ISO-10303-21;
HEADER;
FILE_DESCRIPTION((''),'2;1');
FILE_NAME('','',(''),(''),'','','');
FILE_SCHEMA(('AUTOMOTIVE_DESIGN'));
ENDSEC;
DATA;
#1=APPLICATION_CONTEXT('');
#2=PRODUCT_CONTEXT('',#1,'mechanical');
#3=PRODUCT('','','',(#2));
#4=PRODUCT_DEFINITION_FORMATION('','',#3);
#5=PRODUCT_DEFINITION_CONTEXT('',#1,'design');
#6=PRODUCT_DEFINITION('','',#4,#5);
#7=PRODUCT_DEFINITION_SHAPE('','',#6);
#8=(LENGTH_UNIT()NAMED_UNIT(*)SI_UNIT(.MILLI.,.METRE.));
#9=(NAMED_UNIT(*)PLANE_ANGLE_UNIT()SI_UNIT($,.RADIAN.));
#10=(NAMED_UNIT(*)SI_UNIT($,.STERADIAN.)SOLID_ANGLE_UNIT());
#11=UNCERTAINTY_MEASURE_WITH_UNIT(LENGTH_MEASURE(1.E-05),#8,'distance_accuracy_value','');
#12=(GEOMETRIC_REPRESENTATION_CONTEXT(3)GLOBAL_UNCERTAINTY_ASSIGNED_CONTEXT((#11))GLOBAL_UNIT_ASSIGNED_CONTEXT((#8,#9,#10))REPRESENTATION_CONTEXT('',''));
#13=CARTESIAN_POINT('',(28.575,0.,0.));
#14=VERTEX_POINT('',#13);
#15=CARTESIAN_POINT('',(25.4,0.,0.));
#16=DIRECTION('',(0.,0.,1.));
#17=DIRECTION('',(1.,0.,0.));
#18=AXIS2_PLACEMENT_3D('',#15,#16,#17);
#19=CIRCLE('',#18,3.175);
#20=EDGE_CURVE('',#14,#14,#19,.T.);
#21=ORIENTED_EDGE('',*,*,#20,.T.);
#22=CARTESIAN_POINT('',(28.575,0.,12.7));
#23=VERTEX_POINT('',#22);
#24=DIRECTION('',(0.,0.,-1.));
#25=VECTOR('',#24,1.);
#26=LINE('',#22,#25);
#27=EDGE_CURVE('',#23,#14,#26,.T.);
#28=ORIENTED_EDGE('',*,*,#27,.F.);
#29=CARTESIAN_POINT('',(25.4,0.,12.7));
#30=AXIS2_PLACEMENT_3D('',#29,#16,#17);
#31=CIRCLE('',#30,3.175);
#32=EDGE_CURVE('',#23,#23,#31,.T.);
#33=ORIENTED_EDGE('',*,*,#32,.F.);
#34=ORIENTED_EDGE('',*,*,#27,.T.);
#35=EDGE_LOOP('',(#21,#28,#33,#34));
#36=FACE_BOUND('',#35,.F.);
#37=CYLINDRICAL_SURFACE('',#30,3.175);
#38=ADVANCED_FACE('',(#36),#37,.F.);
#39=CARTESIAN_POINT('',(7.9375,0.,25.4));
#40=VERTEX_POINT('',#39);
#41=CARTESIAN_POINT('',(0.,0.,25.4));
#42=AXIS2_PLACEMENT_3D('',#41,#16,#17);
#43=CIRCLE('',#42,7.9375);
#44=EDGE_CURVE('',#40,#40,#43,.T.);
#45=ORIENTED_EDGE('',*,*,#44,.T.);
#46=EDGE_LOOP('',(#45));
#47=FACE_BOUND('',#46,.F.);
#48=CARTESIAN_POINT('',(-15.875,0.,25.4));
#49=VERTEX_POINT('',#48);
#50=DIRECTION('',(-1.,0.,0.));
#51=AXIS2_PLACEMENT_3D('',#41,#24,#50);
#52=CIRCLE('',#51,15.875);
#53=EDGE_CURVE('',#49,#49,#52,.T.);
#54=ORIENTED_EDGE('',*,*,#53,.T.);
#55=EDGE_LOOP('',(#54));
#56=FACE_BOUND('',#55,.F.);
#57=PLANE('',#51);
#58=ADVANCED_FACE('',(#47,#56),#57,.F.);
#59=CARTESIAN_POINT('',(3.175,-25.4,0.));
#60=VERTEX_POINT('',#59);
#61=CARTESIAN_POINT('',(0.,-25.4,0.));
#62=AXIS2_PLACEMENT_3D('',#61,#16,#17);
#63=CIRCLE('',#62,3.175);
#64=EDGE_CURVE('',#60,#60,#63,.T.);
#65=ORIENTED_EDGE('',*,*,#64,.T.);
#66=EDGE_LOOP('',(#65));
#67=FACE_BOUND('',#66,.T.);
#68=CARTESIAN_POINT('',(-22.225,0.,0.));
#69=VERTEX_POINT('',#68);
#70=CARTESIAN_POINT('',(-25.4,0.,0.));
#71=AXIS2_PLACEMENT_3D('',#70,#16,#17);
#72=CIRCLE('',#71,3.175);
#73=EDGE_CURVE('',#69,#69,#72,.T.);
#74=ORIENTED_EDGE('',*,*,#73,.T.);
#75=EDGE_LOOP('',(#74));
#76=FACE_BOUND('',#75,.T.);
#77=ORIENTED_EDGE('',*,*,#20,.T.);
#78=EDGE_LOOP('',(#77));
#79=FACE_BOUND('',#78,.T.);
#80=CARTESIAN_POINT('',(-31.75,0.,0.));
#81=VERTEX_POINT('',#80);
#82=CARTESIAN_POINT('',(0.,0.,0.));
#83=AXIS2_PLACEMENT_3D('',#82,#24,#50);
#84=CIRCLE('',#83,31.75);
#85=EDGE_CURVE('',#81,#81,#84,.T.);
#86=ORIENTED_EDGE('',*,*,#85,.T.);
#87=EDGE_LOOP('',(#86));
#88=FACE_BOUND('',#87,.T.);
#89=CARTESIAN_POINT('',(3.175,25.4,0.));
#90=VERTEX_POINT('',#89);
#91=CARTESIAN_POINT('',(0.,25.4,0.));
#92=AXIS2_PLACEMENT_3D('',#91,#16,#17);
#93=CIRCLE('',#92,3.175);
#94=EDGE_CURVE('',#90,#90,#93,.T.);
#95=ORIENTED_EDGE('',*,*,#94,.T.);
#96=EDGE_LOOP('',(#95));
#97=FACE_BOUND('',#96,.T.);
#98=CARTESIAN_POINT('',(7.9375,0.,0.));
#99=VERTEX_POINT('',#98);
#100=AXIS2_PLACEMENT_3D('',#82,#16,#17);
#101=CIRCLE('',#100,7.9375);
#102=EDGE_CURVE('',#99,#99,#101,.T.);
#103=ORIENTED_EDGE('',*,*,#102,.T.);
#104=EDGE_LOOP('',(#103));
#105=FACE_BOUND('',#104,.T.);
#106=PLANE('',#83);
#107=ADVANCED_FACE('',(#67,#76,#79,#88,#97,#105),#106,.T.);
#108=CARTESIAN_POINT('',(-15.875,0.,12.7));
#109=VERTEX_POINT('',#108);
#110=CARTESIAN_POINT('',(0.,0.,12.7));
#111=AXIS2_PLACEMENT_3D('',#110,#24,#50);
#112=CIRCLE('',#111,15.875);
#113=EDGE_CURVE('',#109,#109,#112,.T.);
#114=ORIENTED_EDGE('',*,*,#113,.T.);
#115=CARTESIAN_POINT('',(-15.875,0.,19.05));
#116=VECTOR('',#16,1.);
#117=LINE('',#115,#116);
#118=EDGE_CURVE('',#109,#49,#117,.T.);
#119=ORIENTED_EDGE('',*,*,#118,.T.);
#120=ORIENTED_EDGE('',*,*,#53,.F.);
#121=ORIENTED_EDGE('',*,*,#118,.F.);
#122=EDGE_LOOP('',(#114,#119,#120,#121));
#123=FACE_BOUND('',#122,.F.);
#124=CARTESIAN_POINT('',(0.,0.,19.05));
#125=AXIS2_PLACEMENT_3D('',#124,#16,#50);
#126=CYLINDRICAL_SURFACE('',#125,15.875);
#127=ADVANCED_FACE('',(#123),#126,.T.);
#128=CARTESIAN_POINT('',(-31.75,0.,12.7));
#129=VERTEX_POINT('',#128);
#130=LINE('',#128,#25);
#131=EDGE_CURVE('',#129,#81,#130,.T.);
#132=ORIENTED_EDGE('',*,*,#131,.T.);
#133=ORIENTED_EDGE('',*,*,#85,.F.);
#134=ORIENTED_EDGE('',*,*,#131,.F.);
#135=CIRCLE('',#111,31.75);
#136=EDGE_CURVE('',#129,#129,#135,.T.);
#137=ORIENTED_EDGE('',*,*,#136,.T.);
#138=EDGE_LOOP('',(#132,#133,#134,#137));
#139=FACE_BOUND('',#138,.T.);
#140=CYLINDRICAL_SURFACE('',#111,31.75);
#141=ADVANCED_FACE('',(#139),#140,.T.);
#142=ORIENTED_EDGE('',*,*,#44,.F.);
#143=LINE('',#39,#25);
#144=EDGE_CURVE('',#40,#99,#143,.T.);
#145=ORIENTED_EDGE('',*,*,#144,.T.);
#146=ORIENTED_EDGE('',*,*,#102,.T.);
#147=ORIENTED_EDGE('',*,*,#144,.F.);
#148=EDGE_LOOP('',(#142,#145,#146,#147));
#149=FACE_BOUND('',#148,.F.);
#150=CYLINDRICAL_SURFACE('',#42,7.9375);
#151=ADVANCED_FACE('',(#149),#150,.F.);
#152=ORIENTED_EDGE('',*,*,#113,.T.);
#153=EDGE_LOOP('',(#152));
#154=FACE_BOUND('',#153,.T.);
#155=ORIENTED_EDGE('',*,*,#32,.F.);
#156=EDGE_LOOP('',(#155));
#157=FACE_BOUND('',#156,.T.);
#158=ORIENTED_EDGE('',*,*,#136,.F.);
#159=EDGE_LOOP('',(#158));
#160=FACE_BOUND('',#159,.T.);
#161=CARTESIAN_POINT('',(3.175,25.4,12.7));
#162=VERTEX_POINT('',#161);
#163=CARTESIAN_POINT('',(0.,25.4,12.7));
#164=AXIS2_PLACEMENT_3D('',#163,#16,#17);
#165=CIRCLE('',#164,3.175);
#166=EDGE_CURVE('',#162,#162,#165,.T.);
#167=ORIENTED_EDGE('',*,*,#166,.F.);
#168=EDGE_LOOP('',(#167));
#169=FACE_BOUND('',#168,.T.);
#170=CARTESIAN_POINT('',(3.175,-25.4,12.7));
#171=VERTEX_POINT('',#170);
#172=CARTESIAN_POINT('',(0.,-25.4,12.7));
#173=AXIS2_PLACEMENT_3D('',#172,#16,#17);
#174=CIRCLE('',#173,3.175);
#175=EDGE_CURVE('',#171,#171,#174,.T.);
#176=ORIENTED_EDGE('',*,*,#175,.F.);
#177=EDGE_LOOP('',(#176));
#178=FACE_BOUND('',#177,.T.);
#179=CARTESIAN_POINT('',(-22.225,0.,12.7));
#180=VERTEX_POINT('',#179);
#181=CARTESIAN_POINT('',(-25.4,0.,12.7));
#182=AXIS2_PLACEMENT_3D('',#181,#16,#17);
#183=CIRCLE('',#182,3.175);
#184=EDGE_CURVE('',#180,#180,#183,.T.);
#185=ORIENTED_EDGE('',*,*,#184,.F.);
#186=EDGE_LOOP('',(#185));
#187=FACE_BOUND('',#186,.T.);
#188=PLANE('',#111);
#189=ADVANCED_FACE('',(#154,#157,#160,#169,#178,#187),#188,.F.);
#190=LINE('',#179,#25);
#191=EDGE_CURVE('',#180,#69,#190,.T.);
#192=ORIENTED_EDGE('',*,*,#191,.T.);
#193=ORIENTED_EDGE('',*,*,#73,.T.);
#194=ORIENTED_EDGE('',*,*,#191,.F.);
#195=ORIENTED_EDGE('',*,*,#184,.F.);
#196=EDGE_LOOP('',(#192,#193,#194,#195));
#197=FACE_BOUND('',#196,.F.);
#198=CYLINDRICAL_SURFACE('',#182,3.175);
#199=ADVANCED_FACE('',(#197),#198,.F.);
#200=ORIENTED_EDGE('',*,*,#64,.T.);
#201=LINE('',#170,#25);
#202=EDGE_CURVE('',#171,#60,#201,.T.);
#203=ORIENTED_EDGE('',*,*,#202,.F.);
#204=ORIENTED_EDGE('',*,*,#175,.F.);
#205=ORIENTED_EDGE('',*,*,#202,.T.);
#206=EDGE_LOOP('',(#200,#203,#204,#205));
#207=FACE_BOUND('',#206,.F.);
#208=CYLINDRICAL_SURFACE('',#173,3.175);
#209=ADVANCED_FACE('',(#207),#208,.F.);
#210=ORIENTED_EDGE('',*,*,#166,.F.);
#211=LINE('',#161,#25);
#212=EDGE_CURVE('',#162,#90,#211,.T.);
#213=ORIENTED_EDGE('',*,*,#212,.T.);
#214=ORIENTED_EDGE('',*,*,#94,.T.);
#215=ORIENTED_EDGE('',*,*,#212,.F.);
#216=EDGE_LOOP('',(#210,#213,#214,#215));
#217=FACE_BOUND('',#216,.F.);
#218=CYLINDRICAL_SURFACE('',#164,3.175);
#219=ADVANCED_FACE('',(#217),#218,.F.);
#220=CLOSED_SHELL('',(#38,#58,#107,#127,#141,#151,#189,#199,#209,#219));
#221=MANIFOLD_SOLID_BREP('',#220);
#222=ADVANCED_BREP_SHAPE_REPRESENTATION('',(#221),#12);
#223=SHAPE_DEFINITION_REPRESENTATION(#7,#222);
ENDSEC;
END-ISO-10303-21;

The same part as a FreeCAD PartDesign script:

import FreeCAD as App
import Part
import Sketcher
Q = App.Units.Quantity


def add_polygon(sketch, points):
    """Adds a closed chain of lines whose ends are joined by coincident constraints."""
    first, n = sketch.GeometryCount, len(points)
    for a, b in zip(points, points[1:] + points[:1]):
        sketch.addGeometry(Part.LineSegment(App.Vector(*a, 0), App.Vector(*b, 0)), False)
    for i in range(n):
        sketch.addConstraint(Sketcher.Constraint("Coincident", first + i, 2, first + (i + 1) % n, 1))

doc = App.newDocument("Part")
body = doc.addObject("PartDesign::Body", "Body")

# Sketch on XZ plane
sketch1 = doc.addObject("Sketcher::SketchObject", "Sketch")
body.addObject(sketch1)
sketch1.AttachmentSupport = (doc.XZ_Plane, [""])
sketch1.MapMode = "FlatFace"
add_polygon(sketch1, [(-32, 0), (0, 0), (0, 25), (-16, 25), (-16, 13), (-32, 13)])  # lines 0-5
sketch1.addConstraint([
    Sketcher.Constraint("Horizontal", 0),
    Sketcher.Constraint("Vertical", 1),
    Sketcher.Constraint("Horizontal", 2),
    Sketcher.Constraint("Vertical", 3),
    Sketcher.Constraint("Horizontal", 4),
    Sketcher.Constraint("Vertical", 5),
    Sketcher.Constraint("Coincident", 0, 2, -1, 1),
    Sketcher.Constraint("Equal", 2, 4),
    Sketcher.Constraint("Equal", 3, 5),
    Sketcher.Constraint("DistanceY", 1, 1, 1, 2, Q("1 in")),
    Sketcher.Constraint("DistanceX", 0, 1, 0, 2, Q("1.25 in")),
])
revolution = doc.addObject("PartDesign::Revolution", "Revolution")
body.addObject(revolution)
revolution.Profile = sketch1
revolution.ReferenceAxis = (sketch1, ["V_Axis"])
revolution.Angle = 360

# Sketch on XY plane
sketch2 = doc.addObject("Sketcher::SketchObject", "Sketch001")
body.addObject(sketch2)
sketch2.AttachmentSupport = (doc.XY_Plane, [""])
sketch2.MapMode = "FlatFace"
sketch2.AttachmentOffset = App.Placement(App.Vector(0, 0, 1 * 25.4), App.Rotation())
sketch2.addGeometry(Part.Circle(App.Vector(0, 0, 0), App.Vector(0, 0, 1), 8), False)
sketch2.addConstraint([
    Sketcher.Constraint("Coincident", 0, 3, -1, 1),
    Sketcher.Constraint("Diameter", 0, Q("0.625 in")),
])
pocket1 = doc.addObject("PartDesign::Pocket", "Pocket")
body.addObject(pocket1)
pocket1.Profile = sketch2
pocket1.Type = "ThroughAll"

# Sketch on XY plane
sketch3 = doc.addObject("Sketcher::SketchObject", "Sketch002")
body.addObject(sketch3)
sketch3.AttachmentSupport = (doc.XY_Plane, [""])
sketch3.MapMode = "FlatFace"
sketch3.AttachmentOffset = App.Placement(App.Vector(0, 0, 0.5 * 25.4), App.Rotation())
sketch3.addGeometry([
    Part.Circle(App.Vector(0, 25.4, 0), App.Vector(0, 0, 1), 3.2),
    Part.Circle(App.Vector(25.4, 0, 0), App.Vector(0, 0, 1), 3.2),
    Part.Circle(App.Vector(0, -25.4, 0), App.Vector(0, 0, 1), 3.2),
    Part.Circle(App.Vector(-25.4, 0, 0), App.Vector(0, 0, 1), 3.2),
], False)
sketch3.addConstraint([
    Sketcher.Constraint("Equal", 0, 1),
    Sketcher.Constraint("Equal", 1, 2),
    Sketcher.Constraint("Equal", 2, 3),
    Sketcher.Constraint("Symmetric", 0, 3, 2, 3, -1, 1),
    Sketcher.Constraint("Symmetric", 1, 3, 3, 3, -1, 1),
    Sketcher.Constraint("PointOnObject", 0, 3, -2),
    Sketcher.Constraint("PointOnObject", 1, 3, -1),
    Sketcher.Constraint("Diameter", 0, Q("0.25 in")),
    Sketcher.Constraint("DistanceY", -1, 1, 0, 3, Q("1 in")),
    Sketcher.Constraint("DistanceX", -1, 1, 1, 3, Q("1 in")),
])
pocket2 = doc.addObject("PartDesign::Pocket", "Pocket001")
body.addObject(pocket2)
pocket2.Profile = sketch3
pocket2.Type = "ThroughAll"

doc.recompute()
